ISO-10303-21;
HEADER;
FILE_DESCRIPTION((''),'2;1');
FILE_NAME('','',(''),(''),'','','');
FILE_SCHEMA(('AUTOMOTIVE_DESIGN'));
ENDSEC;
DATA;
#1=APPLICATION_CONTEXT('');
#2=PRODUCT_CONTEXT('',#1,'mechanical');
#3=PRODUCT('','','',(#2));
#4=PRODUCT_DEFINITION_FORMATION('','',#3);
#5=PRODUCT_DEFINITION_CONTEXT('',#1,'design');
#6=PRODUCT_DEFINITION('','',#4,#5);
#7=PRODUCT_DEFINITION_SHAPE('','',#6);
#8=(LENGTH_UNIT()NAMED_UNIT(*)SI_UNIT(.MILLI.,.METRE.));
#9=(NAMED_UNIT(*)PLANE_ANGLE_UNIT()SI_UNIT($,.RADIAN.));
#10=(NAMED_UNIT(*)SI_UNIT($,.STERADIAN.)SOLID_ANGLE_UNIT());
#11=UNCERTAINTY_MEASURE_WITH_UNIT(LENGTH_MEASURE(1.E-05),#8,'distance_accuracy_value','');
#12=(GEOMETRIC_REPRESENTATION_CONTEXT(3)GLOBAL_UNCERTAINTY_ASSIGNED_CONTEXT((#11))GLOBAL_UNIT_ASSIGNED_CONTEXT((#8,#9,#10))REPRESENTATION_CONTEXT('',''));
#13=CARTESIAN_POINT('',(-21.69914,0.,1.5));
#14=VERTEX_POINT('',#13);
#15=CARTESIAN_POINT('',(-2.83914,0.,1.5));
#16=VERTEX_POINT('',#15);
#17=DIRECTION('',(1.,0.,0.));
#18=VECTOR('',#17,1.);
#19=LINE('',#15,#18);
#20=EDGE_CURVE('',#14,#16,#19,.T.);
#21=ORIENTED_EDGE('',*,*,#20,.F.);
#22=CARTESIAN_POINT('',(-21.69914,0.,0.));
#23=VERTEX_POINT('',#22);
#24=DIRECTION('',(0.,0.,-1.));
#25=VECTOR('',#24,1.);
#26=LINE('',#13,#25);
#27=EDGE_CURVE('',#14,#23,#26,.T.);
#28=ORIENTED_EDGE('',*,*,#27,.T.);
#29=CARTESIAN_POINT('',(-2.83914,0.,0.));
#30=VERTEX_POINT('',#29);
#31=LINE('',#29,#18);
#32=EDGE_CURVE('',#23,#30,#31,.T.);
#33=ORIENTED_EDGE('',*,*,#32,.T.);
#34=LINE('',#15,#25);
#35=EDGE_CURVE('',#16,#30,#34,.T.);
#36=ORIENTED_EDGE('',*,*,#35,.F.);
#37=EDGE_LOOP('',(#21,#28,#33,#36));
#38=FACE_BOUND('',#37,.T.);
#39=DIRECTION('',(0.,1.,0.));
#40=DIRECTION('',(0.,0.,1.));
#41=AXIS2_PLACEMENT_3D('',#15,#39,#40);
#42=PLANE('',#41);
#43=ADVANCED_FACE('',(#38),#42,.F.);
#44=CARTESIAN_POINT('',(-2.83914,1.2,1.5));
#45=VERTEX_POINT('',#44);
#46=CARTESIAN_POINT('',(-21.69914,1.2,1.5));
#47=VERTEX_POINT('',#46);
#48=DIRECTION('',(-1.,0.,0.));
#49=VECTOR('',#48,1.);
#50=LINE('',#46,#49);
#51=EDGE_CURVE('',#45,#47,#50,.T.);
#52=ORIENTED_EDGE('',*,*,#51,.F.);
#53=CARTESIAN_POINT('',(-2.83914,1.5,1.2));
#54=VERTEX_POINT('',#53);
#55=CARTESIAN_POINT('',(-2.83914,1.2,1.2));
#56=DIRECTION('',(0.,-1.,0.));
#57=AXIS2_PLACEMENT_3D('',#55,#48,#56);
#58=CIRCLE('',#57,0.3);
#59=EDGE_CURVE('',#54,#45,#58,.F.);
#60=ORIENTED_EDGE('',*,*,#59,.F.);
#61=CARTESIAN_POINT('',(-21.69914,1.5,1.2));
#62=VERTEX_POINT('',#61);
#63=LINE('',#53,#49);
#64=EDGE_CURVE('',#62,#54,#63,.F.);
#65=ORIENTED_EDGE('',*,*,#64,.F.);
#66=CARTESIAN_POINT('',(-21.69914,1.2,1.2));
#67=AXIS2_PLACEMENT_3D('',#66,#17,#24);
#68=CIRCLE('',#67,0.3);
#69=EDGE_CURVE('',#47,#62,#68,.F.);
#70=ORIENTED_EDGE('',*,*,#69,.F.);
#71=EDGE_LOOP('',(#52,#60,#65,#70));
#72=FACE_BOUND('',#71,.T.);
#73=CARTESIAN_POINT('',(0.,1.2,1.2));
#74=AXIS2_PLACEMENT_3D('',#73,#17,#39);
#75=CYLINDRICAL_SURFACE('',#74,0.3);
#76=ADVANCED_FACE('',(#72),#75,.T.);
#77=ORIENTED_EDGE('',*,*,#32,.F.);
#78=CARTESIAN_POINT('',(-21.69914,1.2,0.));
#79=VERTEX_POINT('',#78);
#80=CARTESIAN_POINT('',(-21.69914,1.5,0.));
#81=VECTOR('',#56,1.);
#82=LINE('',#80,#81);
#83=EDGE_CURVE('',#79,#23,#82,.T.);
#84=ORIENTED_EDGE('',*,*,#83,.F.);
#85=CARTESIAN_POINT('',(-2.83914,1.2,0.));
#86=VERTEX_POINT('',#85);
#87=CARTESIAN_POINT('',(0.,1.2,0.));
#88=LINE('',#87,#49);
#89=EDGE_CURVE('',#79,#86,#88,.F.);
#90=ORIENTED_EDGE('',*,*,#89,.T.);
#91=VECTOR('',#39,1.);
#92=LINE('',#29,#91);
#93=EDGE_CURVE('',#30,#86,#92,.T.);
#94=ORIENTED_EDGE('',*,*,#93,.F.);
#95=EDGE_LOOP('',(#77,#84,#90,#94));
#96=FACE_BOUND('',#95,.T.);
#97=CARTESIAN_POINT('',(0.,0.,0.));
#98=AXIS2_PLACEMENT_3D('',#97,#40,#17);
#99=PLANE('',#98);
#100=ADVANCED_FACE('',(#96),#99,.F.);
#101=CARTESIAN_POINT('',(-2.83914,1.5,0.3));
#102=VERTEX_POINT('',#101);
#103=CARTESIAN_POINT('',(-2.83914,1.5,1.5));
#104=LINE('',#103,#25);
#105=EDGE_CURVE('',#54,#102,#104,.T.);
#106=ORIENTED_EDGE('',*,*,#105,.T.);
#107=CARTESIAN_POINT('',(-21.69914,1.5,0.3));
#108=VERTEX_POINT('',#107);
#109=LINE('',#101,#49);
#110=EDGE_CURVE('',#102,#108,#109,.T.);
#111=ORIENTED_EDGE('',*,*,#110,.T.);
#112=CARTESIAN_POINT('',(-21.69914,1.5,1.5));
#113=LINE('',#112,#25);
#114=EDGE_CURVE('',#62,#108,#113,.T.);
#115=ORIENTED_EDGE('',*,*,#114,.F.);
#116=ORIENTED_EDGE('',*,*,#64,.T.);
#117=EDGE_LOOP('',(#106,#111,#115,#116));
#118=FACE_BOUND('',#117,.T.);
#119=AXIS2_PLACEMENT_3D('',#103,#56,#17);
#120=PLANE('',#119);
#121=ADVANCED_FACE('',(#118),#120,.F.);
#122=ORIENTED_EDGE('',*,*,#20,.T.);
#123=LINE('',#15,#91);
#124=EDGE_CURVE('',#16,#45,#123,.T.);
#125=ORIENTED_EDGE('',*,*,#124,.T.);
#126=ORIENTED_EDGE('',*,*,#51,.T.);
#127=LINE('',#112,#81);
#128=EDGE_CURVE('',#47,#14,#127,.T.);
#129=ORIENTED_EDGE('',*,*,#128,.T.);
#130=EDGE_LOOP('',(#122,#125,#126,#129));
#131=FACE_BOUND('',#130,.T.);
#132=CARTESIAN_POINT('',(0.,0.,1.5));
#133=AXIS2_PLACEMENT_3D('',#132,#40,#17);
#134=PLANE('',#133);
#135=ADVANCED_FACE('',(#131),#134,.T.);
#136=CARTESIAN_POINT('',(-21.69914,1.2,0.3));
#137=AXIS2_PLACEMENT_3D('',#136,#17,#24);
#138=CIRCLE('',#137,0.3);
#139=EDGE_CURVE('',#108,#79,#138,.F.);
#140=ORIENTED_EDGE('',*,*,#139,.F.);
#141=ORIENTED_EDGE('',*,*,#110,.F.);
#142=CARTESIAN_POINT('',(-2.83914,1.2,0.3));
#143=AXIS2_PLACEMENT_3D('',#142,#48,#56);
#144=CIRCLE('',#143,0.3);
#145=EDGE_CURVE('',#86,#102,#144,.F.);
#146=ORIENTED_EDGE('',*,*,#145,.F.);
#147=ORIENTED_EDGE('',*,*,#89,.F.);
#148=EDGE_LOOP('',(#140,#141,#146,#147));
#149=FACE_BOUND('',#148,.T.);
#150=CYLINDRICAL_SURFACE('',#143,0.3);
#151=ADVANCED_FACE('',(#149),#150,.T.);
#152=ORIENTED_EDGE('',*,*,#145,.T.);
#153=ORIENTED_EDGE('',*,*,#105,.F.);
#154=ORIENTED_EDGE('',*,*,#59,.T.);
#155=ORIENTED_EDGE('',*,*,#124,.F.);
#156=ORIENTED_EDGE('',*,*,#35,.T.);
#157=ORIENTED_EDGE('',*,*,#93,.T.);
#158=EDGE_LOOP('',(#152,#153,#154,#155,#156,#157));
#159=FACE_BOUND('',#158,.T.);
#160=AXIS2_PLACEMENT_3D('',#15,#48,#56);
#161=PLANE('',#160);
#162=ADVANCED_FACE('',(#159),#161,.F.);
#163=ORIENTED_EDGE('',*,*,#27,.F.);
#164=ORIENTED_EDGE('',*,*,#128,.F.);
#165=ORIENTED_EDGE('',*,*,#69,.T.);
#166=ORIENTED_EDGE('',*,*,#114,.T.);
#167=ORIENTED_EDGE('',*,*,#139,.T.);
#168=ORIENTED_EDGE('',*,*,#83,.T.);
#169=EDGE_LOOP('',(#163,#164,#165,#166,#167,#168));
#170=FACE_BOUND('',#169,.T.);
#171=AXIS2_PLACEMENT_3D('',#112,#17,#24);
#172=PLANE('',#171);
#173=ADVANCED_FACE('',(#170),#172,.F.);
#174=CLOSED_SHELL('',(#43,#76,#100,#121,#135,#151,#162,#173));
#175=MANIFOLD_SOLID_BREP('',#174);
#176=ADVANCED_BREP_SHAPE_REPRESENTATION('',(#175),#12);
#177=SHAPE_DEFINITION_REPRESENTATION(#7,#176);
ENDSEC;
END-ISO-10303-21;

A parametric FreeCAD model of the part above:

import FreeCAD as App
import Part
import Sketcher
Q = App.Units.Quantity


def edges_at(feature, points):
    """Names of the edges that pass closest to the given points."""
    edges = feature.Shape.Edges
    near = lambda p: min(range(len(edges)), key=lambda i: edges[i].distToShape(Part.Vertex(*p))[0])
    return sorted({f"Edge{near(p) + 1}" for p in points})

doc = App.newDocument("Part")
params = doc.addObject("Spreadsheet::Sheet", "Params")
for row, (alias, value) in enumerate([
    ("sketch1_height", "1.5 mm"),
    ("sketch1_width", "18.86 mm"),
    ("pad1_length", "1.5 mm"),
    ("fillet_radius", "0.3 mm"),
], start=1):
    params.set(f"A{row}", alias)
    params.set(f"B{row}", "=" + value)
    params.setAlias(f"B{row}", alias)

body = doc.addObject("PartDesign::Body", "Body")

sketch1 = body.newObject("Sketcher::SketchObject", "Sketch")
sketch1.AttachmentSupport = (doc.getObject("XY_Plane"), [""])
sketch1.MapMode = "FlatFace"
sketch1.addGeometry(Part.LineSegment(App.Vector(-21.7, 1.5, 0), App.Vector(-21.7, 0, 0)), False)
sketch1.addGeometry(Part.LineSegment(App.Vector(-21.7, 0, 0), App.Vector(-2.8, 0, 0)), False)
sketch1.addGeometry(Part.LineSegment(App.Vector(-2.8, 0, 0), App.Vector(-2.8, 1.5, 0)), False)
sketch1.addGeometry(Part.LineSegment(App.Vector(-2.8, 1.5, 0), App.Vector(-21.7, 1.5, 0)), False)
sketch1.addConstraint(Sketcher.Constraint("Coincident", 0, 2, 1, 1))
sketch1.addConstraint(Sketcher.Constraint("Coincident", 1, 2, 2, 1))
sketch1.addConstraint(Sketcher.Constraint("Coincident", 2, 2, 3, 1))
sketch1.addConstraint(Sketcher.Constraint("Coincident", 3, 2, 0, 1))
sketch1.addConstraint(Sketcher.Constraint("Vertical", 0))
sketch1.addConstraint(Sketcher.Constraint("Horizontal", 1))
sketch1.addConstraint(Sketcher.Constraint("Vertical", 2))
sketch1.addConstraint(Sketcher.Constraint("Horizontal", 3))
sketch1.addConstraint(Sketcher.Constraint("PointOnObject", 0, 2, -1))
sketch1.addConstraint(Sketcher.Constraint("DistanceY", 0, 2, 0, 1, Q("1.5 mm")))
sketch1.addConstraint(Sketcher.Constraint("DistanceX", 1, 1, 1, 2, Q("18.86 mm")))
sketch1.addConstraint(Sketcher.Constraint("DistanceX", 0, 2, -1, 1, Q("21.69914 mm")))
sketch1.setExpression("Constraints[9]", "Params.sketch1_height")
sketch1.setExpression("Constraints[10]", "Params.sketch1_width")
pad1 = body.newObject("PartDesign::Pad", "Pad")
pad1.Profile = sketch1
pad1.setExpression("Length", "Params.pad1_length")
doc.recompute()

fillet = body.newObject("PartDesign::Fillet", "Fillet")
fillet.Base = (pad1, edges_at(pad1, [(-12.269, 1.5, 0), (-12.269, 1.5, 1.5)]))
fillet.setExpression("Radius", "Params.fillet_radius")

doc.recompute()
